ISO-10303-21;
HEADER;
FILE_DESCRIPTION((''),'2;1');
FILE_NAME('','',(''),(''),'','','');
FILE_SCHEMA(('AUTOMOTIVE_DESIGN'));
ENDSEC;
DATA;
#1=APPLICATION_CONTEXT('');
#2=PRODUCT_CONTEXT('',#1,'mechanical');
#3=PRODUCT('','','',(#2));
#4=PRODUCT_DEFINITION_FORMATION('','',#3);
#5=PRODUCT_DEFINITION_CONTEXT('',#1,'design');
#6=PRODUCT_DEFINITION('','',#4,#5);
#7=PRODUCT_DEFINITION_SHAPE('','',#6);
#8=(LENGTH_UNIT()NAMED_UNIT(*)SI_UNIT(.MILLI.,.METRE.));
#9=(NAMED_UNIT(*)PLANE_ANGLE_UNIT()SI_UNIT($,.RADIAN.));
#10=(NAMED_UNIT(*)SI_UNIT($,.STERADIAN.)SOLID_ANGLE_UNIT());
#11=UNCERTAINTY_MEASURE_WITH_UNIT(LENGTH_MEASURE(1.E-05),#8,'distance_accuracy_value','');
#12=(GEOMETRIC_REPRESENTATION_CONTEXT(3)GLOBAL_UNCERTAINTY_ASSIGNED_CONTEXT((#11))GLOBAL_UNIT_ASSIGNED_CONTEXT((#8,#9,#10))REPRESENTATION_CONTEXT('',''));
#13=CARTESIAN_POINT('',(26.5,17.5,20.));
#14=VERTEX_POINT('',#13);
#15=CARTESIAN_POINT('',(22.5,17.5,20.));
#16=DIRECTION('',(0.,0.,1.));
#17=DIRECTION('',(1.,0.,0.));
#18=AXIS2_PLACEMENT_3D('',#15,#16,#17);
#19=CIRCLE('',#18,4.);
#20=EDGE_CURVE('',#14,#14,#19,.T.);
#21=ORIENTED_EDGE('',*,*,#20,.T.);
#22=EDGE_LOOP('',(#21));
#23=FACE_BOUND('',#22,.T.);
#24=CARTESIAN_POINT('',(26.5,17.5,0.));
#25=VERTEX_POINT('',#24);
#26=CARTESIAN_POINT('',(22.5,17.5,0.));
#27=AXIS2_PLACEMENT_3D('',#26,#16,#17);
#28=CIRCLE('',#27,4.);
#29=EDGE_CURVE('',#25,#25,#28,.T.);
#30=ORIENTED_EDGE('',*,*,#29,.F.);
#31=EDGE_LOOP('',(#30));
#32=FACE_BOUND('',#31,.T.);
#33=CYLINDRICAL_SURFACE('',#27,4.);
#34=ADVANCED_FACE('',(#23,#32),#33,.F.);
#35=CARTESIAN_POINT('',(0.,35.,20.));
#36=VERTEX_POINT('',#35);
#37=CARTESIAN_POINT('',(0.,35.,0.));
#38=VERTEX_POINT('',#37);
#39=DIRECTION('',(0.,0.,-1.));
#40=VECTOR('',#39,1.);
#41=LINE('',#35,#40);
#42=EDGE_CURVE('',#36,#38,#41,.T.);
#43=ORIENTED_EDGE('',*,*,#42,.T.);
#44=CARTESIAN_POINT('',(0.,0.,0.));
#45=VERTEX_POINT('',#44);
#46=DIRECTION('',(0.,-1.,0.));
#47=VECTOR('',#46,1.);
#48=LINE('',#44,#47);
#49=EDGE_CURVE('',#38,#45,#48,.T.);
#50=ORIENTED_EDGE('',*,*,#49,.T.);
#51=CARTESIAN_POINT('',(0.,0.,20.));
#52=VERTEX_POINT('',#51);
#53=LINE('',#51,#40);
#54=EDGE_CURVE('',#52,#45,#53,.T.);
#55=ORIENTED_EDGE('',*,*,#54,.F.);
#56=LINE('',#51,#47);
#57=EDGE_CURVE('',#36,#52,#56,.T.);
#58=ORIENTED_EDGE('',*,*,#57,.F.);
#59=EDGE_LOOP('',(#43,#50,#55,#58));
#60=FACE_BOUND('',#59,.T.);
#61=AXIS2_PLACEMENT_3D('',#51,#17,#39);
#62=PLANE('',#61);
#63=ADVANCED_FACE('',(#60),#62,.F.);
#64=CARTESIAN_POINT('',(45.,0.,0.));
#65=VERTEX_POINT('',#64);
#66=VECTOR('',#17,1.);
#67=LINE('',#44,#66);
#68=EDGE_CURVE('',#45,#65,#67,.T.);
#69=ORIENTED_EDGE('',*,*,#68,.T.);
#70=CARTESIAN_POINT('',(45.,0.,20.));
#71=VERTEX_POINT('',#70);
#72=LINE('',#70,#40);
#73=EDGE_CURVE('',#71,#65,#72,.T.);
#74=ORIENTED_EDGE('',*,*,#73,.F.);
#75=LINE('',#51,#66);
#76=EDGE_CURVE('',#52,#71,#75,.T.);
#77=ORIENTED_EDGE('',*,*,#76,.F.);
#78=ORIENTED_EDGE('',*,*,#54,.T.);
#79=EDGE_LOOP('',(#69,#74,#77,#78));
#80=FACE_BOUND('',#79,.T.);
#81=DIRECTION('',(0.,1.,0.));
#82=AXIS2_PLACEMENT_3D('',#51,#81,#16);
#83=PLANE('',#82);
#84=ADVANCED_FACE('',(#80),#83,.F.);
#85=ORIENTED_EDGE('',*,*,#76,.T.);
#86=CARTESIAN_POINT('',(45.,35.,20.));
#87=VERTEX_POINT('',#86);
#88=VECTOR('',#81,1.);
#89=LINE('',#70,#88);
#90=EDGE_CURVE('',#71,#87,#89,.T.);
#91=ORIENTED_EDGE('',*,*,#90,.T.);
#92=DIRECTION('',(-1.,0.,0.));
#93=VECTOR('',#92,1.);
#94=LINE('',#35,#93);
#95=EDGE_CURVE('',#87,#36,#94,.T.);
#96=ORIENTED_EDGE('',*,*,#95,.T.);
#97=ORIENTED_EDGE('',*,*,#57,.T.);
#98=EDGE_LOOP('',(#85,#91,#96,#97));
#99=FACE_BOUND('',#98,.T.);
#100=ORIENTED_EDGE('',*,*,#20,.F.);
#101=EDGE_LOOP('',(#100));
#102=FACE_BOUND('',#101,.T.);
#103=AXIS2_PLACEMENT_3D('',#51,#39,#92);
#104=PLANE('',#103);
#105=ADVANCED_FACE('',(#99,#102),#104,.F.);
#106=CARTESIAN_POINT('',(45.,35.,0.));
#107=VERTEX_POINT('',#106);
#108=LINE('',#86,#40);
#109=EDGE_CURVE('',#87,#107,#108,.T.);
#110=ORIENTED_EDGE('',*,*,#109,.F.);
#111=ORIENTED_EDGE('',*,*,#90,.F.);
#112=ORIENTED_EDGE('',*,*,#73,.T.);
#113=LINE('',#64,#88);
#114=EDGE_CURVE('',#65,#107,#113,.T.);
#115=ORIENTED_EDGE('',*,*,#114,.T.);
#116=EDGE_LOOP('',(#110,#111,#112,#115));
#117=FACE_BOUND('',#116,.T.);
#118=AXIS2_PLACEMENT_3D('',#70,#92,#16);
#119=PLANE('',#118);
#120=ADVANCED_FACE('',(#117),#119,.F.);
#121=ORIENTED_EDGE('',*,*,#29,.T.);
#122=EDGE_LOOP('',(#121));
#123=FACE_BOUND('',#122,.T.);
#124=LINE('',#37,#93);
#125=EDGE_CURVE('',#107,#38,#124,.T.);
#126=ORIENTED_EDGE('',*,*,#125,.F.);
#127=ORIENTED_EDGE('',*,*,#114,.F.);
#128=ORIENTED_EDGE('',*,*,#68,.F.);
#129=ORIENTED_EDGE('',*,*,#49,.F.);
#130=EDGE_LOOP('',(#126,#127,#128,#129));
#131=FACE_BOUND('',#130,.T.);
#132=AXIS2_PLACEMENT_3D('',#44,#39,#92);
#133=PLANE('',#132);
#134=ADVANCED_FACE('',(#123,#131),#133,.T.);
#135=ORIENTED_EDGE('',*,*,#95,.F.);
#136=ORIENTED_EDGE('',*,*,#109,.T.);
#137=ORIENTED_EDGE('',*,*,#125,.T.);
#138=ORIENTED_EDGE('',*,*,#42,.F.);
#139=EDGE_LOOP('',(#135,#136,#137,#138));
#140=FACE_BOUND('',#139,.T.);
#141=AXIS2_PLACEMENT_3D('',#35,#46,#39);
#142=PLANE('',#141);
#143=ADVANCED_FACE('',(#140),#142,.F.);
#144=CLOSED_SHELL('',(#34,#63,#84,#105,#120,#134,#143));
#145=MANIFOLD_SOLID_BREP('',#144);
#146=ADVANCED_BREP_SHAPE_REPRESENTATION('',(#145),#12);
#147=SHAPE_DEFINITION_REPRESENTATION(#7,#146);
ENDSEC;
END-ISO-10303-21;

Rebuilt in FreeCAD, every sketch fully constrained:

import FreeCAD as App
import Part
import Sketcher

V = App.Vector


def add_polygon(sketch, points):
    """Adds a closed chain of lines whose ends are joined by coincident constraints."""
    first, n = sketch.GeometryCount, len(points)
    for a, b in zip(points, points[1:] + points[:1]):
        sketch.addGeometry(Part.LineSegment(App.Vector(*a, 0), App.Vector(*b, 0)), False)
    for i in range(n):
        sketch.addConstraint(Sketcher.Constraint("Coincident", first + i, 2, first + (i + 1) % n, 1))

doc = App.newDocument("Part")
params = doc.addObject("Spreadsheet::Sheet", "Params")
for row, (alias, value) in enumerate([
    ("sketch1_width", "45 mm"),
    ("sketch1_height", "35 mm"),
    ("pad1_length", "20 mm"),
    ("sketch2_diameter", "8 mm"),
], start=1):
    params.set(f"A{row}", alias)
    params.set(f"B{row}", "=" + value)
    params.setAlias(f"B{row}", alias)

body = doc.addObject("PartDesign::Body", "Body")

# Sketch on XY plane
sketch1 = body.newObject("Sketcher::SketchObject", "Sketch")
sketch1.AttachmentSupport = (doc.getObject("XY_Plane"), [""])
sketch1.MapMode = "FlatFace"
add_polygon(sketch1, [(0, 35), (0, 0), (45, 0), (45, 35)])  # lines 0-3
sketch1.addConstraint(Sketcher.Constraint("Vertical", 0))
sketch1.addConstraint(Sketcher.Constraint("Horizontal", 1))
sketch1.addConstraint(Sketcher.Constraint("Vertical", 2))
sketch1.addConstraint(Sketcher.Constraint("Horizontal", 3))
sketch1.addConstraint(Sketcher.Constraint("Coincident", 0, 2, -1, 1))
sketch1.addConstraint(Sketcher.Constraint("DistanceX", 1, 1, 1, 2, 45.0))
sketch1.addConstraint(Sketcher.Constraint("DistanceY", 0, 2, 0, 1, 35.0))
sketch1.setExpression("Constraints[9]", "Params.sketch1_width")
sketch1.setExpression("Constraints[10]", "Params.sketch1_height")
pad1 = body.newObject("PartDesign::Pad", "Pad")
pad1.Profile = sketch1
pad1.setExpression("Length", "Params.pad1_length")

# Sketch on XY plane
sketch2 = body.newObject("Sketcher::SketchObject", "Sketch001")
sketch2.AttachmentSupport = (doc.getObject("XY_Plane"), [""])
sketch2.MapMode = "FlatFace"
sketch2.AttachmentOffset = App.Placement(V(0, 0, 20), App.Rotation())
sketch2.addGeometry(Part.Circle(V(22.5, 17.5, 0), V(0, 0, 1), 4), False)
sketch2.addConstraint(Sketcher.Constraint("Diameter", 0, 8.0))
sketch2.addConstraint(Sketcher.Constraint("DistanceX", -1, 1, 0, 3, 22.5))
sketch2.addConstraint(Sketcher.Constraint("DistanceY", -1, 1, 0, 3, 17.5))
sketch2.setExpression("Constraints[0]", "Params.sketch2_diameter")
pocket1 = body.newObject("PartDesign::Pocket", "Pocket")
pocket1.Profile = sketch2
pocket1.Type = "ThroughAll"

doc.recompute()
